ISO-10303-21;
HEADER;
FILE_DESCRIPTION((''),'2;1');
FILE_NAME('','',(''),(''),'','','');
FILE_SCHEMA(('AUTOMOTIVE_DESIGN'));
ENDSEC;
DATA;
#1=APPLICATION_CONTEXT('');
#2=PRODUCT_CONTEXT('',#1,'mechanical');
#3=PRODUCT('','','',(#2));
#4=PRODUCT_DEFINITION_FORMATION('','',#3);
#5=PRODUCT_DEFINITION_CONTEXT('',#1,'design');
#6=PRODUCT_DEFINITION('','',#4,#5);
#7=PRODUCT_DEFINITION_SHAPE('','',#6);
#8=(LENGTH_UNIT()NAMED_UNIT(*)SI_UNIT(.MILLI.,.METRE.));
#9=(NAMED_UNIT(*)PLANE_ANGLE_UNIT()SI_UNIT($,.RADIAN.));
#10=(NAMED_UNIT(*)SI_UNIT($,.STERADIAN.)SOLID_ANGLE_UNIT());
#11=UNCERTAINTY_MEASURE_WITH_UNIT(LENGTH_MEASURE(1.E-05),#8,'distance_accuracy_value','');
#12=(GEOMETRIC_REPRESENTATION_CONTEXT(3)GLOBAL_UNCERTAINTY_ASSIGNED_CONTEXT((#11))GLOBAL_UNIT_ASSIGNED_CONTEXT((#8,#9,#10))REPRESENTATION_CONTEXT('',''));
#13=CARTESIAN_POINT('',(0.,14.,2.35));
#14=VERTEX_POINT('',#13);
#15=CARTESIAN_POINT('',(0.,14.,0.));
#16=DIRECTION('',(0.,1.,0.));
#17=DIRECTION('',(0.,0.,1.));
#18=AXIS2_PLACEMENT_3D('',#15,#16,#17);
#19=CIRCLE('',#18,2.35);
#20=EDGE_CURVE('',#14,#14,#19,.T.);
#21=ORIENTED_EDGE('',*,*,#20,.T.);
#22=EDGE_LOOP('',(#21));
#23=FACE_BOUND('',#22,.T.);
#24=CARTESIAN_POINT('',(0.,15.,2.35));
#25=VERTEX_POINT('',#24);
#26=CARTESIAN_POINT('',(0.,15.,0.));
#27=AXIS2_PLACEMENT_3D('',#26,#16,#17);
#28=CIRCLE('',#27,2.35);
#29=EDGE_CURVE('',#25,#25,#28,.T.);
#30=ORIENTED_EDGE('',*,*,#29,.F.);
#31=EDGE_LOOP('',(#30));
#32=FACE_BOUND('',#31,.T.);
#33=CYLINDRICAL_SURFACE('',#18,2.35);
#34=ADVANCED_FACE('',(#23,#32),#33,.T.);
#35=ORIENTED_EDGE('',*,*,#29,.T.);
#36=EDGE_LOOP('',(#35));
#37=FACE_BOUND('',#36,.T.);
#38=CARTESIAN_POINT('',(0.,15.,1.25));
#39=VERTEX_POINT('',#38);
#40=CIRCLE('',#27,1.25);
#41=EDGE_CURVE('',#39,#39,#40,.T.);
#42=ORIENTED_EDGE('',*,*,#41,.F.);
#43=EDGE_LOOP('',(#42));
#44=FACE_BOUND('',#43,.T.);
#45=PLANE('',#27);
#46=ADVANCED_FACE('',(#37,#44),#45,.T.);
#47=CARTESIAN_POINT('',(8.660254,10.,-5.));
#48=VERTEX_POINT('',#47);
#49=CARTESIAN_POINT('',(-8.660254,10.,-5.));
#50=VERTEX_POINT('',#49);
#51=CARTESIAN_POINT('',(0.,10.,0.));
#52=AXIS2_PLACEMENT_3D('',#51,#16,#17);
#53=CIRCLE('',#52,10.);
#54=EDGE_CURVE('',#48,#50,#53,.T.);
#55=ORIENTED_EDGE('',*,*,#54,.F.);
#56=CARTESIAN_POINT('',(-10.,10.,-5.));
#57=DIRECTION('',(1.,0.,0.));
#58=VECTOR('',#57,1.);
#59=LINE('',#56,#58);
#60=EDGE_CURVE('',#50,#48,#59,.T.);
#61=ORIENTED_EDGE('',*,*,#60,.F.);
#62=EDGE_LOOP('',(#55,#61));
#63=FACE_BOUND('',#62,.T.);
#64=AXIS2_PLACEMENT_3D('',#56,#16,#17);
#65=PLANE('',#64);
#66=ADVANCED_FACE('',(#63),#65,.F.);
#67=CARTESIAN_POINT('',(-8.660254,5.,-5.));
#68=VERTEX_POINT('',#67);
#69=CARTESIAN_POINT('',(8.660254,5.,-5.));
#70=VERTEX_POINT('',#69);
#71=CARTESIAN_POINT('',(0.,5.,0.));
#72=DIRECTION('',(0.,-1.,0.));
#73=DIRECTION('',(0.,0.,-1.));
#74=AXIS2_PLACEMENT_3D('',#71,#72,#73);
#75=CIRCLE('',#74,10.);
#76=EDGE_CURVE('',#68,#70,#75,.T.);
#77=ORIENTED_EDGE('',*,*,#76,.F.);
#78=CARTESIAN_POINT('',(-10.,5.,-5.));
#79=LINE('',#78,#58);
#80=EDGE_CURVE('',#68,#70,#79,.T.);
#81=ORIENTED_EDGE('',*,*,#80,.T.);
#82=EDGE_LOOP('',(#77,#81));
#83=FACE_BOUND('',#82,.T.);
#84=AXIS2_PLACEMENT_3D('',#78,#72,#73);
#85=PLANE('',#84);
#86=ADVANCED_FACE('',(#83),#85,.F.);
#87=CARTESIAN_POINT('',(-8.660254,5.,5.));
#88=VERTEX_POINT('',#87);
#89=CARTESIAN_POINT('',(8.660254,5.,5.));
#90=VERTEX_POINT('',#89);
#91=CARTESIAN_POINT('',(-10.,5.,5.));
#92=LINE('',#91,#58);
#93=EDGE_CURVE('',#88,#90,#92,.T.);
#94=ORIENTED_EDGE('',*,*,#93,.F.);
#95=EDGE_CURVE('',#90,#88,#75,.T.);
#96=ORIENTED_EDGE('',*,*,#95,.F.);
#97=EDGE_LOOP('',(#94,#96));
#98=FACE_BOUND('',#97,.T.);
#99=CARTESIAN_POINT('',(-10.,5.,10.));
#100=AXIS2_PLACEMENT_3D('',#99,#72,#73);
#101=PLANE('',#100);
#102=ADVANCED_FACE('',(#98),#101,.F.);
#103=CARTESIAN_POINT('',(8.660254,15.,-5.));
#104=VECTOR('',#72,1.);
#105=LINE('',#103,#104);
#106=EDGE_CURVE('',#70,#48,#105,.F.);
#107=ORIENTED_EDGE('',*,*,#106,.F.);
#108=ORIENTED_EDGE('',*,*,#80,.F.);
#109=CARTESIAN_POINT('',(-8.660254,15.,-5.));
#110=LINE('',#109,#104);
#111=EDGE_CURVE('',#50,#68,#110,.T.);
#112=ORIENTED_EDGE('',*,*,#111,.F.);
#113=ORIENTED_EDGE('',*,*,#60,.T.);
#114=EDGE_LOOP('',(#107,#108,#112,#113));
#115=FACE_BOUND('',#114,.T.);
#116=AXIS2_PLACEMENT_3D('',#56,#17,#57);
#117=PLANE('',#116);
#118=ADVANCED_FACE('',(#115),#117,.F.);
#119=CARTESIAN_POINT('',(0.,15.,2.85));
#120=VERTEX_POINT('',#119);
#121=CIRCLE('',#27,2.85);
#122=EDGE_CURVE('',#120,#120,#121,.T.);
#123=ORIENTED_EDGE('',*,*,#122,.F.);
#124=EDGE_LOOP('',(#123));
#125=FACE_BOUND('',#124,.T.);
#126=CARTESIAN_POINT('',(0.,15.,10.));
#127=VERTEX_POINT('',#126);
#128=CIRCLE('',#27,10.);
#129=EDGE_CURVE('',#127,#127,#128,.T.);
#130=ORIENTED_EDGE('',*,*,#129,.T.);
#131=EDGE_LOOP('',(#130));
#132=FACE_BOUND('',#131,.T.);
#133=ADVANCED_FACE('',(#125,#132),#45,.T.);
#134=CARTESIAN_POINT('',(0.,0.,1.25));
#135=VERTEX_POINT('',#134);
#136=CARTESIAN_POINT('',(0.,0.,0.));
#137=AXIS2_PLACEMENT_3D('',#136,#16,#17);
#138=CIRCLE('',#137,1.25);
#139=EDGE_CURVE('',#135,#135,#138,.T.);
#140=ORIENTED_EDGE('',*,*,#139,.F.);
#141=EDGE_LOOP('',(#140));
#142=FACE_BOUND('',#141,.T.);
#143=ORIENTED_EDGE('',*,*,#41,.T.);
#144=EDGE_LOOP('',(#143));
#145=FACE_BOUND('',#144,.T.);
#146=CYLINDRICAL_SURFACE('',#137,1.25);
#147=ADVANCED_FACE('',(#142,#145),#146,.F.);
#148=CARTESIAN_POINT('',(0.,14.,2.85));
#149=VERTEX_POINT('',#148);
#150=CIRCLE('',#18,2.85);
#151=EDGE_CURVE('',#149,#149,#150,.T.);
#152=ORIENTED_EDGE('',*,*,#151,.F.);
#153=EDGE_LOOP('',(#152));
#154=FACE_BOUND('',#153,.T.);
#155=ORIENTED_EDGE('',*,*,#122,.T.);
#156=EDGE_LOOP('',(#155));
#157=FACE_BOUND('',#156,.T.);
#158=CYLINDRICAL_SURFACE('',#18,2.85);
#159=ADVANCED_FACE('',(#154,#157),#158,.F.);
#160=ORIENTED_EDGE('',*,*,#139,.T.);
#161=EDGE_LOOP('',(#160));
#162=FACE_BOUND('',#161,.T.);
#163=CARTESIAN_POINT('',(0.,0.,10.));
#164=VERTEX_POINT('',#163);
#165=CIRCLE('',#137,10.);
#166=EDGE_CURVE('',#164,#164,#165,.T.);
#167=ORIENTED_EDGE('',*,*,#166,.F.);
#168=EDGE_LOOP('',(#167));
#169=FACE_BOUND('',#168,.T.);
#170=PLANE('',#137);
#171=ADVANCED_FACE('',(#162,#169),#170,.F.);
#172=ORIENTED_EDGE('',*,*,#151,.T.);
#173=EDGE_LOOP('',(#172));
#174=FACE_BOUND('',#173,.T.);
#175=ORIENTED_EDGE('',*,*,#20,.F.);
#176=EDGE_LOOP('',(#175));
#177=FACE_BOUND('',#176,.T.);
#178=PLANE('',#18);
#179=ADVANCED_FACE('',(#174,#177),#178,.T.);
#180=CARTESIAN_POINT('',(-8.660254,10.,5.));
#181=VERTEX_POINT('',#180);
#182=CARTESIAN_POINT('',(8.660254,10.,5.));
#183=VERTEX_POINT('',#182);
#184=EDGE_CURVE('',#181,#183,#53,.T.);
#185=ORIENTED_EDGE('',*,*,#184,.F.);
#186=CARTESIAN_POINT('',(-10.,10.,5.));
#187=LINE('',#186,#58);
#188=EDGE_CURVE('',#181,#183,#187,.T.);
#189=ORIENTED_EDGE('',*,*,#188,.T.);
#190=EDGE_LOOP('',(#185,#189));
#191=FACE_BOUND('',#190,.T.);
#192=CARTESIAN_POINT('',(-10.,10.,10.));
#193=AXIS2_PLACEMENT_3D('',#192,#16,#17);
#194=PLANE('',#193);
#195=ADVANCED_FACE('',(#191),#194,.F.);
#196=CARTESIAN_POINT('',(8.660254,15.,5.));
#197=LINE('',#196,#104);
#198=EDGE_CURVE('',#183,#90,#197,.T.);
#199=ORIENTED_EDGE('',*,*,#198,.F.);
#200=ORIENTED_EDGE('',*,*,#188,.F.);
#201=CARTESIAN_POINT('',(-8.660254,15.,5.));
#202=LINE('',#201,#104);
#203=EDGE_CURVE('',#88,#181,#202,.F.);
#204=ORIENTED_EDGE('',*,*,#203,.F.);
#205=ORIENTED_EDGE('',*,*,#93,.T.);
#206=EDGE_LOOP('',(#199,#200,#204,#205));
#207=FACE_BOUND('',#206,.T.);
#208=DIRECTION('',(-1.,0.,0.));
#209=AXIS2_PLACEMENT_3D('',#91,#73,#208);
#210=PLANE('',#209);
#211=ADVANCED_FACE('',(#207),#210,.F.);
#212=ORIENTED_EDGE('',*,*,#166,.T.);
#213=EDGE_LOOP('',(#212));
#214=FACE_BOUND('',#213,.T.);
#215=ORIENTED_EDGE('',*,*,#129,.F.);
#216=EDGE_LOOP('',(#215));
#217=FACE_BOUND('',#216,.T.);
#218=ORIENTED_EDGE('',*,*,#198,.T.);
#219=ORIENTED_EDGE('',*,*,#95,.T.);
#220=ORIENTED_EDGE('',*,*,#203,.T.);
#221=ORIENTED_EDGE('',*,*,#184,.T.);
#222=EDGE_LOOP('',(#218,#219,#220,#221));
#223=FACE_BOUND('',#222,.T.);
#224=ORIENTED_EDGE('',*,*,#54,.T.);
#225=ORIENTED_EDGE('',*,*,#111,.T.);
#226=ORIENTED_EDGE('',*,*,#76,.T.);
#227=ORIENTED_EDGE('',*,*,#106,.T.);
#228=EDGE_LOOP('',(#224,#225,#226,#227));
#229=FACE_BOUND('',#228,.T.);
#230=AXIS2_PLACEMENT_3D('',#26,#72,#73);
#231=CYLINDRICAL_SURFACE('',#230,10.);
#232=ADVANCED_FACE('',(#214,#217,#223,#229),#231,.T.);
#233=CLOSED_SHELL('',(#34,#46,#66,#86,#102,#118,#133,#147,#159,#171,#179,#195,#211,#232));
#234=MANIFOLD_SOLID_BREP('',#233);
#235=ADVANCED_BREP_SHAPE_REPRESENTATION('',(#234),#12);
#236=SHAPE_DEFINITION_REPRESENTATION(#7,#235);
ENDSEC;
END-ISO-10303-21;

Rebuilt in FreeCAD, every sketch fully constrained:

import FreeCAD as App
import Part
import Sketcher

V = App.Vector


def add_polygon(sketch, points):
    """Adds a closed chain of lines whose ends are joined by coincident constraints."""
    first, n = sketch.GeometryCount, len(points)
    for a, b in zip(points, points[1:] + points[:1]):
        sketch.addGeometry(Part.LineSegment(App.Vector(*a, 0), App.Vector(*b, 0)), False)
    for i in range(n):
        sketch.addConstraint(Sketcher.Constraint("Coincident", first + i, 2, first + (i + 1) % n, 1))

doc = App.newDocument("Part")
params = doc.addObject("Spreadsheet::Sheet", "Params")
for row, (alias, value) in enumerate([
    ("sketch1_diameter", "20 mm"),
    ("pad1_length", "15 mm"),
    ("sketch2_diameter", "5.7 mm"),
    ("sketch2_diameter2", "4.7 mm"),
    ("pocket1_length", "1 mm"),
    ("sketch3_diameter", "2.5 mm"),
    ("sketch4_width", "5 mm"),
], start=1):
    params.set(f"A{row}", alias)
    params.set(f"B{row}", "=" + value)
    params.setAlias(f"B{row}", alias)

body = doc.addObject("PartDesign::Body", "Body")

sketch1 = doc.addObject("Sketcher::SketchObject", "Sketch")
body.addObject(sketch1)
sketch1.AttachmentSupport = (doc.XZ_Plane, [""])
sketch1.MapMode = "FlatFace"
sketch1.addGeometry(Part.Circle(V(0, 0, 0), V(0, 0, 1), 10), False)
sketch1.addConstraint(Sketcher.Constraint("Coincident", 0, 3, -1, 1))
sketch1.addConstraint(Sketcher.Constraint("Diameter", 0, 20.0))
sketch1.setExpression("Constraints[1]", "Params.sketch1_diameter")
pad1 = doc.addObject("PartDesign::Pad", "Pad")
body.addObject(pad1)
pad1.Profile = sketch1
pad1.setExpression("Length", "Params.pad1_length")
pad1.Reversed = True

sketch2 = doc.addObject("Sketcher::SketchObject", "Sketch001")
body.addObject(sketch2)
sketch2.AttachmentSupport = (doc.XZ_Plane, [""])
sketch2.MapMode = "FlatFace"
sketch2.AttachmentOffset = App.Placement(V(0, 0, -15), App.Rotation())
sketch2.addGeometry(Part.Circle(V(0, 0, 0), V(0, 0, 1), 2.9), False)
sketch2.addGeometry(Part.Circle(V(0, 0, 0), V(0, 0, 1), 2.4), False)
sketch2.addConstraint(Sketcher.Constraint("Coincident", 0, 3, -1, 1))
sketch2.addConstraint(Sketcher.Constraint("Coincident", 1, 3, -1, 1))
sketch2.addConstraint(Sketcher.Constraint("Diameter", 0, 5.7))
sketch2.addConstraint(Sketcher.Constraint("Diameter", 1, 4.7))
sketch2.setExpression("Constraints[2]", "Params.sketch2_diameter")
sketch2.setExpression("Constraints[3]", "Params.sketch2_diameter2")
pocket1 = doc.addObject("PartDesign::Pocket", "Pocket")
body.addObject(pocket1)
pocket1.Profile = sketch2
pocket1.setExpression("Length", "Params.pocket1_length")
pocket1.Reversed = True

sketch3 = doc.addObject("Sketcher::SketchObject", "Sketch002")
body.addObject(sketch3)
sketch3.AttachmentSupport = (doc.XZ_Plane, [""])
sketch3.MapMode = "FlatFace"
sketch3.AttachmentOffset = App.Placement(V(0, 0, -15), App.Rotation())
sketch3.addGeometry(Part.Circle(V(0, 0, 0), V(0, 0, 1), 1.2), False)
sketch3.addConstraint(Sketcher.Constraint("Coincident", 0, 3, -1, 1))
sketch3.addConstraint(Sketcher.Constraint("Diameter", 0, 2.5))
sketch3.setExpression("Constraints[1]", "Params.sketch3_diameter")
pocket2 = doc.addObject("PartDesign::Pocket", "Pocket001")
body.addObject(pocket2)
pocket2.Profile = sketch3
pocket2.Type = "ThroughAll"
pocket2.Reversed = True

sketch4 = doc.addObject("Sketcher::SketchObject", "Sketch003")
body.addObject(sketch4)
sketch4.AttachmentSupport = (doc.YZ_Plane, [""])
sketch4.MapMode = "FlatFace"
add_polygon(sketch4, [(10, 10), (5, 10), (5, 5), (10, 5)])
add_polygon(sketch4, [(10, -5), (5, -5), (5, -10), (10, -10)])
sketch4.addConstraint(Sketcher.Constraint("Horizontal", 0))
sketch4.addConstraint(Sketcher.Constraint("Vertical", 1))
sketch4.addConstraint(Sketcher.Constraint("Horizontal", 2))
sketch4.addConstraint(Sketcher.Constraint("Vertical", 3))
sketch4.addConstraint(Sketcher.Constraint("Horizontal", 4))
sketch4.addConstraint(Sketcher.Constraint("Vertical", 5))
sketch4.addConstraint(Sketcher.Constraint("Horizontal", 6))
sketch4.addConstraint(Sketcher.Constraint("Vertical", 7))
sketch4.addConstraint(Sketcher.Constraint("Symmetric", 1, 2, 4, 2, -1))
sketch4.addConstraint(Sketcher.Constraint("Symmetric", 3, 2, 6, 2, -1))
sketch4.addConstraint(Sketcher.Constraint("Equal", 6, 1))
sketch4.addConstraint(Sketcher.Constraint("DistanceX", 0, 2, 0, 1, 5.0))
sketch4.addConstraint(Sketcher.Constraint("DistanceX", -1, 1, 0, 2, 5.0))
sketch4.addConstraint(Sketcher.Constraint("DistanceY", -1, 1, 0, 2, 10.0))
sketch4.setExpression("Constraints[19]", "Params.sketch4_width")
pocket3 = doc.addObject("PartDesign::Pocket", "Pocket002")
body.addObject(pocket3)
pocket3.Profile = sketch4
pocket3.Type = "ThroughAll"
pocket3.Midplane = True

doc.recompute()
